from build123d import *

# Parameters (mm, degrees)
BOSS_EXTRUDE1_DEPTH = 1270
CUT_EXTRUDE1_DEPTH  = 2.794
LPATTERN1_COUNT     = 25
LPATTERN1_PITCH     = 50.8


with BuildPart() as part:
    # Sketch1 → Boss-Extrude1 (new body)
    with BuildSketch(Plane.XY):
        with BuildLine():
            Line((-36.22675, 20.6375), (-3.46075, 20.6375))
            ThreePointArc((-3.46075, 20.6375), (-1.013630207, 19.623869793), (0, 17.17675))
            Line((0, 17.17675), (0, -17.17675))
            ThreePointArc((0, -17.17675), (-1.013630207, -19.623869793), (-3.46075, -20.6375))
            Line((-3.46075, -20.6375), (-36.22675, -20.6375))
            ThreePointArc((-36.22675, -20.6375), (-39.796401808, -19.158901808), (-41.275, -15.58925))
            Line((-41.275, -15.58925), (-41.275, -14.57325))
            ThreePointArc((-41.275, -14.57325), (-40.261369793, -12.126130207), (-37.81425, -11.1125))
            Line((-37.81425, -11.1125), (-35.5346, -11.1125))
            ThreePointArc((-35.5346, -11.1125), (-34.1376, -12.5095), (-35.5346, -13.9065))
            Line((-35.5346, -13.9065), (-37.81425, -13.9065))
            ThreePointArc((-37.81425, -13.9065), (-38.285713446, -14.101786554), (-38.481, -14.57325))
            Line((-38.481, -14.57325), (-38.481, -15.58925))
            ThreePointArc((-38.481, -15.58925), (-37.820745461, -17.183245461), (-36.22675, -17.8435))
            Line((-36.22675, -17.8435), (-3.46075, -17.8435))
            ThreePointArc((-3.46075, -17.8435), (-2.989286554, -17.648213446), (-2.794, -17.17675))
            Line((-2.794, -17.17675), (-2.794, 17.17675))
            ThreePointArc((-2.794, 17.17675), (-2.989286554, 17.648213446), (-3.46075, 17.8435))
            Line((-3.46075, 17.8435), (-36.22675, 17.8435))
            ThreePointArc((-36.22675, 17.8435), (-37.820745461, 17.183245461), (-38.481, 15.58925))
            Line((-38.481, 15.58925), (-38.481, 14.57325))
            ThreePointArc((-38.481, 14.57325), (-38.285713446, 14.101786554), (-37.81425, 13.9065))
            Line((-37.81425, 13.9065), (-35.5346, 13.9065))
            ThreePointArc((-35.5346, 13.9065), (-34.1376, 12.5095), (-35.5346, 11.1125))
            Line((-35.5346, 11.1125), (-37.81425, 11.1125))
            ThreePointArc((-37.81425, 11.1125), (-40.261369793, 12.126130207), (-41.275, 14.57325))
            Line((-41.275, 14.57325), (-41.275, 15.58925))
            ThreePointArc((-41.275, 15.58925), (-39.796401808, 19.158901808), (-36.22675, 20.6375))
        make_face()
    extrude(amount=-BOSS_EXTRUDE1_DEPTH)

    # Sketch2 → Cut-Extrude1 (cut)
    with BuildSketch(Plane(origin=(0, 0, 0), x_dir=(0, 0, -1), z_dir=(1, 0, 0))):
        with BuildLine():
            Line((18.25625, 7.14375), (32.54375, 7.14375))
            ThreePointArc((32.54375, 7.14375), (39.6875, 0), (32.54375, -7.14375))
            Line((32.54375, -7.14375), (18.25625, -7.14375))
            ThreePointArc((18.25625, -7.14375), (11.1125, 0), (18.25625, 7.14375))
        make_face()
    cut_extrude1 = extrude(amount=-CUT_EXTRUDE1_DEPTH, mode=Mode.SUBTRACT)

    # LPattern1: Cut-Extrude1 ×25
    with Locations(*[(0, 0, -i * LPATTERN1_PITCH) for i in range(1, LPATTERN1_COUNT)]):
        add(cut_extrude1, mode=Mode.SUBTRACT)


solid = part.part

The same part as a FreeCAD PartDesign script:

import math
import FreeCAD as App
import Part
import Sketcher

V = App.Vector
Q = App.Units.Quantity

doc = App.newDocument("Part")
params = doc.addObject("Spreadsheet::Sheet", "Params")
for row, (alias, value) in enumerate([
    ("sketch1_radius", "0.055 in"),
    ("sketch1_width", "1.29 in"),
    ("sketch1_height", "0.04 in"),
    ("pad1_length", "50 in"),
    ("sketch2_radius", "0.28125 in"),
    ("sketch2_height", "0.5625 in"),
    ("pocket1_length", "0.11 in"),
    ("linearpattern_pitch", "2 in"),
], start=1):
    params.set(f"A{row}", alias)
    params.set(f"B{row}", "=" + value)
    params.setAlias(f"B{row}", alias)

body = doc.addObject("PartDesign::Body", "Body")

# Sketch on XY plane
sketch1 = body.newObject("Sketcher::SketchObject", "Sketch")
sketch1.AttachmentSupport = (doc.getObject("XY_Plane"), [""])
sketch1.MapMode = "FlatFace"
sketch1.addGeometry(Part.LineSegment(V(-3.46075, 20.6375, 0), V(-36.22675, 20.6375, 0)), False)
sketch1.addGeometry(Part.ArcOfCircle(Part.Circle(V(-36.22675, 15.58925, 0), V(0, 0, 1), 5.04825), math.radians(90), math.radians(180)), False)
sketch1.addGeometry(Part.LineSegment(V(-41.275, 15.58925, 0), V(-41.275, 14.57325, 0)), False)
sketch1.addGeometry(Part.ArcOfCircle(Part.Circle(V(-37.81425, 14.57325, 0), V(0, 0, 1), 3.46075), math.radians(180), math.radians(270)), False)
sketch1.addGeometry(Part.LineSegment(V(-37.81425, 11.1125, 0), V(-35.5346, 11.1125, 0)), False)
sketch1.addGeometry(Part.ArcOfCircle(Part.Circle(V(-35.5346, 12.5095, 0), V(0, 0, 1), 1.397), math.radians(-90), math.radians(90)), False)
sketch1.addGeometry(Part.LineSegment(V(-35.5346, 13.9065, 0), V(-37.81425, 13.9065, 0)), False)
sketch1.addGeometry(Part.ArcOfCircle(Part.Circle(V(-37.81425, 14.57325, 0), V(0, 0, 1), 0.66675), math.radians(-180), math.radians(-90)), False)
sketch1.addGeometry(Part.LineSegment(V(-38.481, 14.57325, 0), V(-38.481, 15.58925, 0)), False)
sketch1.addGeometry(Part.ArcOfCircle(Part.Circle(V(-36.22675, 15.58925, 0), V(0, 0, 1), 2.25425), math.radians(90), math.radians(180)), False)
sketch1.addGeometry(Part.LineSegment(V(-36.22675, 17.8435, 0), V(-3.46075, 17.8435, 0)), False)
sketch1.addGeometry(Part.ArcOfCircle(Part.Circle(V(-3.46075, 17.17675, 0), V(0, 0, 1), 0.66675), math.radians(0), math.radians(90)), False)
sketch1.addGeometry(Part.LineSegment(V(-2.794, 17.17675, 0), V(-2.794, -17.17675, 0)), False)
sketch1.addGeometry(Part.ArcOfCircle(Part.Circle(V(-3.46075, -17.17675, 0), V(0, 0, 1), 0.66675), math.radians(-90), math.radians(0)), False)
sketch1.addGeometry(Part.LineSegment(V(-3.46075, -17.8435, 0), V(-36.22675, -17.8435, 0)), False)
sketch1.addGeometry(Part.ArcOfCircle(Part.Circle(V(-36.22675, -15.58925, 0), V(0, 0, 1), 2.25425), math.radians(-180), math.radians(-90)), False)
sketch1.addGeometry(Part.LineSegment(V(-38.481, -15.58925, 0), V(-38.481, -14.57325, 0)), False)
sketch1.addGeometry(Part.ArcOfCircle(Part.Circle(V(-37.81425, -14.57325, 0), V(0, 0, 1), 0.66675), math.radians(90), math.radians(180)), False)
sketch1.addGeometry(Part.LineSegment(V(-37.81425, -13.9065, 0), V(-35.5346, -13.9065, 0)), False)
sketch1.addGeometry(Part.ArcOfCircle(Part.Circle(V(-35.5346, -12.5095, 0), V(0, 0, 1), 1.397), math.radians(-90), math.radians(90)), False)
sketch1.addGeometry(Part.LineSegment(V(-35.5346, -11.1125, 0), V(-37.81425, -11.1125, 0)), False)
sketch1.addGeometry(Part.ArcOfCircle(Part.Circle(V(-37.81425, -14.57325, 0), V(0, 0, 1), 3.46075), math.radians(90), math.radians(180)), False)
sketch1.addGeometry(Part.LineSegment(V(-41.275, -14.57325, 0), V(-41.275, -15.58925, 0)), False)
sketch1.addGeometry(Part.ArcOfCircle(Part.Circle(V(-36.22675, -15.58925, 0), V(0, 0, 1), 5.04825), math.radians(180), math.radians(270)), False)
sketch1.addGeometry(Part.LineSegment(V(-36.22675, -20.6375, 0), V(-3.46075, -20.6375, 0)), False)
sketch1.addGeometry(Part.ArcOfCircle(Part.Circle(V(-3.46075, -17.17675, 0), V(0, 0, 1), 3.46075), math.radians(-90), math.radians(0)), False)
sketch1.addGeometry(Part.LineSegment(V(0, -17.17675, 0), V(0, 17.17675, 0)), False)
sketch1.addGeometry(Part.ArcOfCircle(Part.Circle(V(-3.46075, 17.17675, 0), V(0, 0, 1), 3.46075), math.radians(0), math.radians(90)), False)
sketch1.addConstraint(Sketcher.Constraint("Tangent", 0, 2, 1, 1))
sketch1.addConstraint(Sketcher.Constraint("Tangent", 1, 2, 2, 1))
sketch1.addConstraint(Sketcher.Constraint("Tangent", 2, 2, 3, 1))
sketch1.addConstraint(Sketcher.Constraint("Tangent", 3, 2, 4, 1))
sketch1.addConstraint(Sketcher.Constraint("Tangent", 4, 2, 5, 1))
sketch1.addConstraint(Sketcher.Constraint("Tangent", 5, 2, 6, 1))
sketch1.addConstraint(Sketcher.Constraint("Tangent", 6, 2, 7, 2))
sketch1.addConstraint(Sketcher.Constraint("Tangent", 7, 1, 8, 1))
sketch1.addConstraint(Sketcher.Constraint("Tangent", 8, 2, 9, 2))
sketch1.addConstraint(Sketcher.Constraint("Tangent", 9, 1, 10, 1))
sketch1.addConstraint(Sketcher.Constraint("Tangent", 10, 2, 11, 2))
sketch1.addConstraint(Sketcher.Constraint("Tangent", 11, 1, 12, 1))
sketch1.addConstraint(Sketcher.Constraint("Tangent", 12, 2, 13, 2))
sketch1.addConstraint(Sketcher.Constraint("Tangent", 13, 1, 14, 1))
sketch1.addConstraint(Sketcher.Constraint("Tangent", 14, 2, 15, 2))
sketch1.addConstraint(Sketcher.Constraint("Tangent", 15, 1, 16, 1))
sketch1.addConstraint(Sketcher.Constraint("Tangent", 16, 2, 17, 2))
sketch1.addConstraint(Sketcher.Constraint("Tangent", 17, 1, 18, 1))
sketch1.addConstraint(Sketcher.Constraint("Tangent", 18, 2, 19, 1))
sketch1.addConstraint(Sketcher.Constraint("Tangent", 19, 2, 20, 1))
sketch1.addConstraint(Sketcher.Constraint("Tangent", 20, 2, 21, 1))
sketch1.addConstraint(Sketcher.Constraint("Tangent", 21, 2, 22, 1))
sketch1.addConstraint(Sketcher.Constraint("Tangent", 22, 2, 23, 1))
sketch1.addConstraint(Sketcher.Constraint("Tangent", 23, 2, 24, 1))
sketch1.addConstraint(Sketcher.Constraint("Tangent", 24, 2, 25, 1))
sketch1.addConstraint(Sketcher.Constraint("Tangent", 25, 2, 26, 1))
sketch1.addConstraint(Sketcher.Constraint("Tangent", 26, 2, 27, 1))
sketch1.addConstraint(Sketcher.Constraint("Tangent", 27, 2, 0, 1))
sketch1.addConstraint(Sketcher.Constraint("Horizontal", 0))
sketch1.addConstraint(Sketcher.Constraint("Vertical", 2))
sketch1.addConstraint(Sketcher.Constraint("Horizontal", 4))
sketch1.addConstraint(Sketcher.Constraint("Horizontal", 6))
sketch1.addConstraint(Sketcher.Constraint("Vertical", 8))
sketch1.addConstraint(Sketcher.Constraint("Horizontal", 10))
sketch1.addConstraint(Sketcher.Constraint("Vertical", 12))
sketch1.addConstraint(Sketcher.Constraint("Horizontal", 14))
sketch1.addConstraint(Sketcher.Constraint("Vertical", 16))
sketch1.addConstraint(Sketcher.Constraint("Horizontal", 18))
sketch1.addConstraint(Sketcher.Constraint("Horizontal", 20))
sketch1.addConstraint(Sketcher.Constraint("Vertical", 22))
sketch1.addConstraint(Sketcher.Constraint("Horizontal", 24))
sketch1.addConstraint(Sketcher.Constraint("Vertical", 26))
sketch1.addConstraint(Sketcher.Constraint("Coincident", 7, 3, 3, 3))
sketch1.addConstraint(Sketcher.Constraint("Coincident", 9, 3, 1, 3))
sketch1.addConstraint(Sketcher.Constraint("Coincident", 21, 3, 17, 3))
sketch1.addConstraint(Sketcher.Constraint("Coincident", 23, 3, 15, 3))
sketch1.addConstraint(Sketcher.Constraint("Coincident", 25, 3, 13, 3))
sketch1.addConstraint(Sketcher.Constraint("Coincident", 27, 3, 11, 3))
sketch1.addConstraint(Sketcher.Constraint("Equal", 7, 11))
sketch1.addConstraint(Sketcher.Constraint("Equal", 11, 13))
sketch1.addConstraint(Sketcher.Constraint("Equal", 9, 15))
sketch1.addConstraint(Sketcher.Constraint("Equal", 13, 17))
sketch1.addConstraint(Sketcher.Constraint("Symmetric", 25, 2, 26, 2, -1, 1))
sketch1.addConstraint(Sketcher.Constraint("Symmetric", 3, 3, 17, 3, -1))
sketch1.addConstraint(Sketcher.Constraint("Vertical", 5, 3, 19, 3))
sketch1.addConstraint(Sketcher.Constraint("Radius", 5, Q("0.055 in")))
sketch1.addConstraint(Sketcher.Constraint("DistanceX", 0, 2, 0, 1, Q("1.29 in")))
sketch1.addConstraint(Sketcher.Constraint("DistanceY", 2, 2, 2, 1, Q("0.04 in")))
sketch1.addConstraint(Sketcher.Constraint("DistanceY", 13, 3, 9, 3, Q("1.29 in")))
sketch1.addConstraint(Sketcher.Constraint("DistanceY", 5, 3, 0, 2, Q("0.32 in")))
sketch1.addConstraint(Sketcher.Constraint("DistanceY", 12, 2, 12, 1, Q("1.3525 in")))
sketch1.addConstraint(Sketcher.Constraint("DistanceX", 5, 3, -1, 1, Q("1.399 in")))
sketch1.setExpression("Constraints[55]", "Params.sketch1_radius")
sketch1.setExpression("Constraints[56]", "Params.sketch1_width")
sketch1.setExpression("Constraints[57]", "Params.sketch1_height")
pad1 = body.newObject("PartDesign::Pad", "Pad")
pad1.Profile = sketch1
pad1.setExpression("Length", "Params.pad1_length")
pad1.Reversed = True

# Sketch on YZ plane
sketch2 = body.newObject("Sketcher::SketchObject", "Sketch001")
sketch2.AttachmentSupport = (doc.getObject("YZ_Plane"), [""])
sketch2.MapMode = "FlatFace"
sketch2.addGeometry(Part.LineSegment(V(7.14375, -32.54375, 0), V(7.14375, -18.25625, 0)), False)
sketch2.addGeometry(Part.ArcOfCircle(Part.Circle(V(0, -18.25625, 0), V(0, 0, 1), 7.14375), math.radians(0), math.radians(180)), False)
sketch2.addGeometry(Part.LineSegment(V(-7.14375, -18.25625, 0), V(-7.14375, -32.54375, 0)), False)
sketch2.addGeometry(Part.ArcOfCircle(Part.Circle(V(0, -32.54375, 0), V(0, 0, 1), 7.14375), math.radians(180), math.radians(360)), False)
sketch2.addConstraint(Sketcher.Constraint("Tangent", 0, 2, 1, 1))
sketch2.addConstraint(Sketcher.Constraint("Tangent", 1, 2, 2, 1))
sketch2.addConstraint(Sketcher.Constraint("Tangent", 2, 2, 3, 1))
sketch2.addConstraint(Sketcher.Constraint("Tangent", 3, 2, 0, 1))
sketch2.addConstraint(Sketcher.Constraint("Vertical", 0))
sketch2.addConstraint(Sketcher.Constraint("Vertical", 2))
sketch2.addConstraint(Sketcher.Constraint("PointOnObject", 1, 3, -2))
sketch2.addConstraint(Sketcher.Constraint("Radius", 1, Q("0.28125 in")))
sketch2.addConstraint(Sketcher.Constraint("DistanceY", 0, 1, 0, 2, Q("0.5625 in")))
sketch2.addConstraint(Sketcher.Constraint("DistanceY", 1, 3, -1, 1, Q("0.71875 in")))
sketch2.setExpression("Constraints[7]", "Params.sketch2_radius")
sketch2.setExpression("Constraints[8]", "Params.sketch2_height")
pocket1 = body.newObject("PartDesign::Pocket", "Pocket")
pocket1.Profile = sketch2
pocket1.setExpression("Length", "Params.pocket1_length")
doc.recompute()

linearpattern = body.newObject("PartDesign::LinearPattern", "LinearPattern")
linearpattern.Originals = [pocket1]
linearpattern.Direction = (doc.getObject("Z_Axis"), [""])
linearpattern.Mode = "offset"
linearpattern.setExpression("Offset", "Params.linearpattern_pitch")
linearpattern.Occurrences = 25
linearpattern.Reversed = True
body.Tip = linearpattern

doc.recompute()
